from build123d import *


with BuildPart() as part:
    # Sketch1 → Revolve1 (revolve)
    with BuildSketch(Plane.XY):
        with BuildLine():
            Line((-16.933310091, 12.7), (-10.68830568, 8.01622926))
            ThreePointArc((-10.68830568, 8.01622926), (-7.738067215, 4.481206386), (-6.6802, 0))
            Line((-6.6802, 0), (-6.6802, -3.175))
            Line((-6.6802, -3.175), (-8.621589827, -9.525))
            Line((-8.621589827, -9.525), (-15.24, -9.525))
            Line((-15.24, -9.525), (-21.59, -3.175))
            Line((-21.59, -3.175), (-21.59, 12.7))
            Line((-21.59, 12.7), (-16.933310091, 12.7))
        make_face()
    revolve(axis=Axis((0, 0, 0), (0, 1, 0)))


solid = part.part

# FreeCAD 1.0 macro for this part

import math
import FreeCAD as App
import Part
import Sketcher
from FreeCAD import Vector
Q = App.Units.Quantity

doc = App.newDocument("Part")
body = doc.addObject("PartDesign::Body", "Body")

# Sketch on XY plane
sketch1 = body.newObject("Sketcher::SketchObject", "Sketch")
sketch1.AttachmentSupport = (doc.getObject("XY_Plane"), [""])
sketch1.MapMode = "FlatFace"
sketch1.addGeometry([
    Part.LineSegment(Vector(-10.7, 8, 0), Vector(-16.9, 12.7, 0)),  # 0
    Part.LineSegment(Vector(-16.9, 12.7, 0), Vector(-21.6, 12.7, 0)),  # 1
    Part.LineSegment(Vector(-21.6, 12.7, 0), Vector(-21.6, -3.2, 0)),  # 2
    Part.LineSegment(Vector(-21.6, -3.2, 0), Vector(-15.2, -9.5, 0)),  # 3
    Part.LineSegment(Vector(-15.2, -9.5, 0), Vector(-8.6, -9.5, 0)),  # 4
    Part.LineSegment(Vector(-8.6, -9.5, 0), Vector(-6.7, -3.2, 0)),  # 5
    Part.LineSegment(Vector(-6.7, -3.2, 0), Vector(-6.7, 0, 0)),  # 6
    Part.ArcOfCircle(Part.Circle(Vector(-16.7, 0, 0), Vector(0, 0, 1), 10), math.radians(0), math.radians(53)),  # 7
], False)
sketch1.addConstraint([
    Sketcher.Constraint("Coincident", 0, 2, 1, 1),
    Sketcher.Constraint("Coincident", 1, 2, 2, 1),
    Sketcher.Constraint("Coincident", 2, 2, 3, 1),
    Sketcher.Constraint("Coincident", 3, 2, 4, 1),
    Sketcher.Constraint("Coincident", 4, 2, 5, 1),
    Sketcher.Constraint("Coincident", 5, 2, 6, 1),
    Sketcher.Constraint("Tangent", 6, 2, 7, 1),
    Sketcher.Constraint("Tangent", 7, 2, 0, 1),
    Sketcher.Constraint("Horizontal", 1),
    Sketcher.Constraint("Vertical", 2),
    Sketcher.Constraint("Horizontal", 4),
    Sketcher.Constraint("Vertical", 6),
    Sketcher.Constraint("PointOnObject", 7, 3, -1),
    Sketcher.Constraint("Horizontal", 2, 2, 5, 2),
    Sketcher.Constraint("Angle", 3, Q("-45 deg")),
    Sketcher.Constraint("Angle", 5, Q("73 deg")),
    Sketcher.Constraint("DistanceY", -1, 1, 0, 2, Q("0.5 in")),
    Sketcher.Constraint("DistanceX", 3, 2, -1, 1, Q("0.6 in")),
    Sketcher.Constraint("Radius", 7, Q("0.3945 in")),
    Sketcher.Constraint("DistanceY", 2, 2, 2, 1, Q("0.625 in")),
    Sketcher.Constraint("DistanceX", 1, 2, -1, 1, Q("0.85 in")),
    Sketcher.Constraint("Angle", 0, Q("143.13 deg")),
    Sketcher.Constraint("DistanceX", 5, 2, -1, 1, Q("0.263 in")),
])
revolution = body.newObject("PartDesign::Revolution", "Revolution")
revolution.Profile = sketch1
revolution.ReferenceAxis = (sketch1, ["V_Axis"])
revolution.Angle = 360

doc.recompute()
